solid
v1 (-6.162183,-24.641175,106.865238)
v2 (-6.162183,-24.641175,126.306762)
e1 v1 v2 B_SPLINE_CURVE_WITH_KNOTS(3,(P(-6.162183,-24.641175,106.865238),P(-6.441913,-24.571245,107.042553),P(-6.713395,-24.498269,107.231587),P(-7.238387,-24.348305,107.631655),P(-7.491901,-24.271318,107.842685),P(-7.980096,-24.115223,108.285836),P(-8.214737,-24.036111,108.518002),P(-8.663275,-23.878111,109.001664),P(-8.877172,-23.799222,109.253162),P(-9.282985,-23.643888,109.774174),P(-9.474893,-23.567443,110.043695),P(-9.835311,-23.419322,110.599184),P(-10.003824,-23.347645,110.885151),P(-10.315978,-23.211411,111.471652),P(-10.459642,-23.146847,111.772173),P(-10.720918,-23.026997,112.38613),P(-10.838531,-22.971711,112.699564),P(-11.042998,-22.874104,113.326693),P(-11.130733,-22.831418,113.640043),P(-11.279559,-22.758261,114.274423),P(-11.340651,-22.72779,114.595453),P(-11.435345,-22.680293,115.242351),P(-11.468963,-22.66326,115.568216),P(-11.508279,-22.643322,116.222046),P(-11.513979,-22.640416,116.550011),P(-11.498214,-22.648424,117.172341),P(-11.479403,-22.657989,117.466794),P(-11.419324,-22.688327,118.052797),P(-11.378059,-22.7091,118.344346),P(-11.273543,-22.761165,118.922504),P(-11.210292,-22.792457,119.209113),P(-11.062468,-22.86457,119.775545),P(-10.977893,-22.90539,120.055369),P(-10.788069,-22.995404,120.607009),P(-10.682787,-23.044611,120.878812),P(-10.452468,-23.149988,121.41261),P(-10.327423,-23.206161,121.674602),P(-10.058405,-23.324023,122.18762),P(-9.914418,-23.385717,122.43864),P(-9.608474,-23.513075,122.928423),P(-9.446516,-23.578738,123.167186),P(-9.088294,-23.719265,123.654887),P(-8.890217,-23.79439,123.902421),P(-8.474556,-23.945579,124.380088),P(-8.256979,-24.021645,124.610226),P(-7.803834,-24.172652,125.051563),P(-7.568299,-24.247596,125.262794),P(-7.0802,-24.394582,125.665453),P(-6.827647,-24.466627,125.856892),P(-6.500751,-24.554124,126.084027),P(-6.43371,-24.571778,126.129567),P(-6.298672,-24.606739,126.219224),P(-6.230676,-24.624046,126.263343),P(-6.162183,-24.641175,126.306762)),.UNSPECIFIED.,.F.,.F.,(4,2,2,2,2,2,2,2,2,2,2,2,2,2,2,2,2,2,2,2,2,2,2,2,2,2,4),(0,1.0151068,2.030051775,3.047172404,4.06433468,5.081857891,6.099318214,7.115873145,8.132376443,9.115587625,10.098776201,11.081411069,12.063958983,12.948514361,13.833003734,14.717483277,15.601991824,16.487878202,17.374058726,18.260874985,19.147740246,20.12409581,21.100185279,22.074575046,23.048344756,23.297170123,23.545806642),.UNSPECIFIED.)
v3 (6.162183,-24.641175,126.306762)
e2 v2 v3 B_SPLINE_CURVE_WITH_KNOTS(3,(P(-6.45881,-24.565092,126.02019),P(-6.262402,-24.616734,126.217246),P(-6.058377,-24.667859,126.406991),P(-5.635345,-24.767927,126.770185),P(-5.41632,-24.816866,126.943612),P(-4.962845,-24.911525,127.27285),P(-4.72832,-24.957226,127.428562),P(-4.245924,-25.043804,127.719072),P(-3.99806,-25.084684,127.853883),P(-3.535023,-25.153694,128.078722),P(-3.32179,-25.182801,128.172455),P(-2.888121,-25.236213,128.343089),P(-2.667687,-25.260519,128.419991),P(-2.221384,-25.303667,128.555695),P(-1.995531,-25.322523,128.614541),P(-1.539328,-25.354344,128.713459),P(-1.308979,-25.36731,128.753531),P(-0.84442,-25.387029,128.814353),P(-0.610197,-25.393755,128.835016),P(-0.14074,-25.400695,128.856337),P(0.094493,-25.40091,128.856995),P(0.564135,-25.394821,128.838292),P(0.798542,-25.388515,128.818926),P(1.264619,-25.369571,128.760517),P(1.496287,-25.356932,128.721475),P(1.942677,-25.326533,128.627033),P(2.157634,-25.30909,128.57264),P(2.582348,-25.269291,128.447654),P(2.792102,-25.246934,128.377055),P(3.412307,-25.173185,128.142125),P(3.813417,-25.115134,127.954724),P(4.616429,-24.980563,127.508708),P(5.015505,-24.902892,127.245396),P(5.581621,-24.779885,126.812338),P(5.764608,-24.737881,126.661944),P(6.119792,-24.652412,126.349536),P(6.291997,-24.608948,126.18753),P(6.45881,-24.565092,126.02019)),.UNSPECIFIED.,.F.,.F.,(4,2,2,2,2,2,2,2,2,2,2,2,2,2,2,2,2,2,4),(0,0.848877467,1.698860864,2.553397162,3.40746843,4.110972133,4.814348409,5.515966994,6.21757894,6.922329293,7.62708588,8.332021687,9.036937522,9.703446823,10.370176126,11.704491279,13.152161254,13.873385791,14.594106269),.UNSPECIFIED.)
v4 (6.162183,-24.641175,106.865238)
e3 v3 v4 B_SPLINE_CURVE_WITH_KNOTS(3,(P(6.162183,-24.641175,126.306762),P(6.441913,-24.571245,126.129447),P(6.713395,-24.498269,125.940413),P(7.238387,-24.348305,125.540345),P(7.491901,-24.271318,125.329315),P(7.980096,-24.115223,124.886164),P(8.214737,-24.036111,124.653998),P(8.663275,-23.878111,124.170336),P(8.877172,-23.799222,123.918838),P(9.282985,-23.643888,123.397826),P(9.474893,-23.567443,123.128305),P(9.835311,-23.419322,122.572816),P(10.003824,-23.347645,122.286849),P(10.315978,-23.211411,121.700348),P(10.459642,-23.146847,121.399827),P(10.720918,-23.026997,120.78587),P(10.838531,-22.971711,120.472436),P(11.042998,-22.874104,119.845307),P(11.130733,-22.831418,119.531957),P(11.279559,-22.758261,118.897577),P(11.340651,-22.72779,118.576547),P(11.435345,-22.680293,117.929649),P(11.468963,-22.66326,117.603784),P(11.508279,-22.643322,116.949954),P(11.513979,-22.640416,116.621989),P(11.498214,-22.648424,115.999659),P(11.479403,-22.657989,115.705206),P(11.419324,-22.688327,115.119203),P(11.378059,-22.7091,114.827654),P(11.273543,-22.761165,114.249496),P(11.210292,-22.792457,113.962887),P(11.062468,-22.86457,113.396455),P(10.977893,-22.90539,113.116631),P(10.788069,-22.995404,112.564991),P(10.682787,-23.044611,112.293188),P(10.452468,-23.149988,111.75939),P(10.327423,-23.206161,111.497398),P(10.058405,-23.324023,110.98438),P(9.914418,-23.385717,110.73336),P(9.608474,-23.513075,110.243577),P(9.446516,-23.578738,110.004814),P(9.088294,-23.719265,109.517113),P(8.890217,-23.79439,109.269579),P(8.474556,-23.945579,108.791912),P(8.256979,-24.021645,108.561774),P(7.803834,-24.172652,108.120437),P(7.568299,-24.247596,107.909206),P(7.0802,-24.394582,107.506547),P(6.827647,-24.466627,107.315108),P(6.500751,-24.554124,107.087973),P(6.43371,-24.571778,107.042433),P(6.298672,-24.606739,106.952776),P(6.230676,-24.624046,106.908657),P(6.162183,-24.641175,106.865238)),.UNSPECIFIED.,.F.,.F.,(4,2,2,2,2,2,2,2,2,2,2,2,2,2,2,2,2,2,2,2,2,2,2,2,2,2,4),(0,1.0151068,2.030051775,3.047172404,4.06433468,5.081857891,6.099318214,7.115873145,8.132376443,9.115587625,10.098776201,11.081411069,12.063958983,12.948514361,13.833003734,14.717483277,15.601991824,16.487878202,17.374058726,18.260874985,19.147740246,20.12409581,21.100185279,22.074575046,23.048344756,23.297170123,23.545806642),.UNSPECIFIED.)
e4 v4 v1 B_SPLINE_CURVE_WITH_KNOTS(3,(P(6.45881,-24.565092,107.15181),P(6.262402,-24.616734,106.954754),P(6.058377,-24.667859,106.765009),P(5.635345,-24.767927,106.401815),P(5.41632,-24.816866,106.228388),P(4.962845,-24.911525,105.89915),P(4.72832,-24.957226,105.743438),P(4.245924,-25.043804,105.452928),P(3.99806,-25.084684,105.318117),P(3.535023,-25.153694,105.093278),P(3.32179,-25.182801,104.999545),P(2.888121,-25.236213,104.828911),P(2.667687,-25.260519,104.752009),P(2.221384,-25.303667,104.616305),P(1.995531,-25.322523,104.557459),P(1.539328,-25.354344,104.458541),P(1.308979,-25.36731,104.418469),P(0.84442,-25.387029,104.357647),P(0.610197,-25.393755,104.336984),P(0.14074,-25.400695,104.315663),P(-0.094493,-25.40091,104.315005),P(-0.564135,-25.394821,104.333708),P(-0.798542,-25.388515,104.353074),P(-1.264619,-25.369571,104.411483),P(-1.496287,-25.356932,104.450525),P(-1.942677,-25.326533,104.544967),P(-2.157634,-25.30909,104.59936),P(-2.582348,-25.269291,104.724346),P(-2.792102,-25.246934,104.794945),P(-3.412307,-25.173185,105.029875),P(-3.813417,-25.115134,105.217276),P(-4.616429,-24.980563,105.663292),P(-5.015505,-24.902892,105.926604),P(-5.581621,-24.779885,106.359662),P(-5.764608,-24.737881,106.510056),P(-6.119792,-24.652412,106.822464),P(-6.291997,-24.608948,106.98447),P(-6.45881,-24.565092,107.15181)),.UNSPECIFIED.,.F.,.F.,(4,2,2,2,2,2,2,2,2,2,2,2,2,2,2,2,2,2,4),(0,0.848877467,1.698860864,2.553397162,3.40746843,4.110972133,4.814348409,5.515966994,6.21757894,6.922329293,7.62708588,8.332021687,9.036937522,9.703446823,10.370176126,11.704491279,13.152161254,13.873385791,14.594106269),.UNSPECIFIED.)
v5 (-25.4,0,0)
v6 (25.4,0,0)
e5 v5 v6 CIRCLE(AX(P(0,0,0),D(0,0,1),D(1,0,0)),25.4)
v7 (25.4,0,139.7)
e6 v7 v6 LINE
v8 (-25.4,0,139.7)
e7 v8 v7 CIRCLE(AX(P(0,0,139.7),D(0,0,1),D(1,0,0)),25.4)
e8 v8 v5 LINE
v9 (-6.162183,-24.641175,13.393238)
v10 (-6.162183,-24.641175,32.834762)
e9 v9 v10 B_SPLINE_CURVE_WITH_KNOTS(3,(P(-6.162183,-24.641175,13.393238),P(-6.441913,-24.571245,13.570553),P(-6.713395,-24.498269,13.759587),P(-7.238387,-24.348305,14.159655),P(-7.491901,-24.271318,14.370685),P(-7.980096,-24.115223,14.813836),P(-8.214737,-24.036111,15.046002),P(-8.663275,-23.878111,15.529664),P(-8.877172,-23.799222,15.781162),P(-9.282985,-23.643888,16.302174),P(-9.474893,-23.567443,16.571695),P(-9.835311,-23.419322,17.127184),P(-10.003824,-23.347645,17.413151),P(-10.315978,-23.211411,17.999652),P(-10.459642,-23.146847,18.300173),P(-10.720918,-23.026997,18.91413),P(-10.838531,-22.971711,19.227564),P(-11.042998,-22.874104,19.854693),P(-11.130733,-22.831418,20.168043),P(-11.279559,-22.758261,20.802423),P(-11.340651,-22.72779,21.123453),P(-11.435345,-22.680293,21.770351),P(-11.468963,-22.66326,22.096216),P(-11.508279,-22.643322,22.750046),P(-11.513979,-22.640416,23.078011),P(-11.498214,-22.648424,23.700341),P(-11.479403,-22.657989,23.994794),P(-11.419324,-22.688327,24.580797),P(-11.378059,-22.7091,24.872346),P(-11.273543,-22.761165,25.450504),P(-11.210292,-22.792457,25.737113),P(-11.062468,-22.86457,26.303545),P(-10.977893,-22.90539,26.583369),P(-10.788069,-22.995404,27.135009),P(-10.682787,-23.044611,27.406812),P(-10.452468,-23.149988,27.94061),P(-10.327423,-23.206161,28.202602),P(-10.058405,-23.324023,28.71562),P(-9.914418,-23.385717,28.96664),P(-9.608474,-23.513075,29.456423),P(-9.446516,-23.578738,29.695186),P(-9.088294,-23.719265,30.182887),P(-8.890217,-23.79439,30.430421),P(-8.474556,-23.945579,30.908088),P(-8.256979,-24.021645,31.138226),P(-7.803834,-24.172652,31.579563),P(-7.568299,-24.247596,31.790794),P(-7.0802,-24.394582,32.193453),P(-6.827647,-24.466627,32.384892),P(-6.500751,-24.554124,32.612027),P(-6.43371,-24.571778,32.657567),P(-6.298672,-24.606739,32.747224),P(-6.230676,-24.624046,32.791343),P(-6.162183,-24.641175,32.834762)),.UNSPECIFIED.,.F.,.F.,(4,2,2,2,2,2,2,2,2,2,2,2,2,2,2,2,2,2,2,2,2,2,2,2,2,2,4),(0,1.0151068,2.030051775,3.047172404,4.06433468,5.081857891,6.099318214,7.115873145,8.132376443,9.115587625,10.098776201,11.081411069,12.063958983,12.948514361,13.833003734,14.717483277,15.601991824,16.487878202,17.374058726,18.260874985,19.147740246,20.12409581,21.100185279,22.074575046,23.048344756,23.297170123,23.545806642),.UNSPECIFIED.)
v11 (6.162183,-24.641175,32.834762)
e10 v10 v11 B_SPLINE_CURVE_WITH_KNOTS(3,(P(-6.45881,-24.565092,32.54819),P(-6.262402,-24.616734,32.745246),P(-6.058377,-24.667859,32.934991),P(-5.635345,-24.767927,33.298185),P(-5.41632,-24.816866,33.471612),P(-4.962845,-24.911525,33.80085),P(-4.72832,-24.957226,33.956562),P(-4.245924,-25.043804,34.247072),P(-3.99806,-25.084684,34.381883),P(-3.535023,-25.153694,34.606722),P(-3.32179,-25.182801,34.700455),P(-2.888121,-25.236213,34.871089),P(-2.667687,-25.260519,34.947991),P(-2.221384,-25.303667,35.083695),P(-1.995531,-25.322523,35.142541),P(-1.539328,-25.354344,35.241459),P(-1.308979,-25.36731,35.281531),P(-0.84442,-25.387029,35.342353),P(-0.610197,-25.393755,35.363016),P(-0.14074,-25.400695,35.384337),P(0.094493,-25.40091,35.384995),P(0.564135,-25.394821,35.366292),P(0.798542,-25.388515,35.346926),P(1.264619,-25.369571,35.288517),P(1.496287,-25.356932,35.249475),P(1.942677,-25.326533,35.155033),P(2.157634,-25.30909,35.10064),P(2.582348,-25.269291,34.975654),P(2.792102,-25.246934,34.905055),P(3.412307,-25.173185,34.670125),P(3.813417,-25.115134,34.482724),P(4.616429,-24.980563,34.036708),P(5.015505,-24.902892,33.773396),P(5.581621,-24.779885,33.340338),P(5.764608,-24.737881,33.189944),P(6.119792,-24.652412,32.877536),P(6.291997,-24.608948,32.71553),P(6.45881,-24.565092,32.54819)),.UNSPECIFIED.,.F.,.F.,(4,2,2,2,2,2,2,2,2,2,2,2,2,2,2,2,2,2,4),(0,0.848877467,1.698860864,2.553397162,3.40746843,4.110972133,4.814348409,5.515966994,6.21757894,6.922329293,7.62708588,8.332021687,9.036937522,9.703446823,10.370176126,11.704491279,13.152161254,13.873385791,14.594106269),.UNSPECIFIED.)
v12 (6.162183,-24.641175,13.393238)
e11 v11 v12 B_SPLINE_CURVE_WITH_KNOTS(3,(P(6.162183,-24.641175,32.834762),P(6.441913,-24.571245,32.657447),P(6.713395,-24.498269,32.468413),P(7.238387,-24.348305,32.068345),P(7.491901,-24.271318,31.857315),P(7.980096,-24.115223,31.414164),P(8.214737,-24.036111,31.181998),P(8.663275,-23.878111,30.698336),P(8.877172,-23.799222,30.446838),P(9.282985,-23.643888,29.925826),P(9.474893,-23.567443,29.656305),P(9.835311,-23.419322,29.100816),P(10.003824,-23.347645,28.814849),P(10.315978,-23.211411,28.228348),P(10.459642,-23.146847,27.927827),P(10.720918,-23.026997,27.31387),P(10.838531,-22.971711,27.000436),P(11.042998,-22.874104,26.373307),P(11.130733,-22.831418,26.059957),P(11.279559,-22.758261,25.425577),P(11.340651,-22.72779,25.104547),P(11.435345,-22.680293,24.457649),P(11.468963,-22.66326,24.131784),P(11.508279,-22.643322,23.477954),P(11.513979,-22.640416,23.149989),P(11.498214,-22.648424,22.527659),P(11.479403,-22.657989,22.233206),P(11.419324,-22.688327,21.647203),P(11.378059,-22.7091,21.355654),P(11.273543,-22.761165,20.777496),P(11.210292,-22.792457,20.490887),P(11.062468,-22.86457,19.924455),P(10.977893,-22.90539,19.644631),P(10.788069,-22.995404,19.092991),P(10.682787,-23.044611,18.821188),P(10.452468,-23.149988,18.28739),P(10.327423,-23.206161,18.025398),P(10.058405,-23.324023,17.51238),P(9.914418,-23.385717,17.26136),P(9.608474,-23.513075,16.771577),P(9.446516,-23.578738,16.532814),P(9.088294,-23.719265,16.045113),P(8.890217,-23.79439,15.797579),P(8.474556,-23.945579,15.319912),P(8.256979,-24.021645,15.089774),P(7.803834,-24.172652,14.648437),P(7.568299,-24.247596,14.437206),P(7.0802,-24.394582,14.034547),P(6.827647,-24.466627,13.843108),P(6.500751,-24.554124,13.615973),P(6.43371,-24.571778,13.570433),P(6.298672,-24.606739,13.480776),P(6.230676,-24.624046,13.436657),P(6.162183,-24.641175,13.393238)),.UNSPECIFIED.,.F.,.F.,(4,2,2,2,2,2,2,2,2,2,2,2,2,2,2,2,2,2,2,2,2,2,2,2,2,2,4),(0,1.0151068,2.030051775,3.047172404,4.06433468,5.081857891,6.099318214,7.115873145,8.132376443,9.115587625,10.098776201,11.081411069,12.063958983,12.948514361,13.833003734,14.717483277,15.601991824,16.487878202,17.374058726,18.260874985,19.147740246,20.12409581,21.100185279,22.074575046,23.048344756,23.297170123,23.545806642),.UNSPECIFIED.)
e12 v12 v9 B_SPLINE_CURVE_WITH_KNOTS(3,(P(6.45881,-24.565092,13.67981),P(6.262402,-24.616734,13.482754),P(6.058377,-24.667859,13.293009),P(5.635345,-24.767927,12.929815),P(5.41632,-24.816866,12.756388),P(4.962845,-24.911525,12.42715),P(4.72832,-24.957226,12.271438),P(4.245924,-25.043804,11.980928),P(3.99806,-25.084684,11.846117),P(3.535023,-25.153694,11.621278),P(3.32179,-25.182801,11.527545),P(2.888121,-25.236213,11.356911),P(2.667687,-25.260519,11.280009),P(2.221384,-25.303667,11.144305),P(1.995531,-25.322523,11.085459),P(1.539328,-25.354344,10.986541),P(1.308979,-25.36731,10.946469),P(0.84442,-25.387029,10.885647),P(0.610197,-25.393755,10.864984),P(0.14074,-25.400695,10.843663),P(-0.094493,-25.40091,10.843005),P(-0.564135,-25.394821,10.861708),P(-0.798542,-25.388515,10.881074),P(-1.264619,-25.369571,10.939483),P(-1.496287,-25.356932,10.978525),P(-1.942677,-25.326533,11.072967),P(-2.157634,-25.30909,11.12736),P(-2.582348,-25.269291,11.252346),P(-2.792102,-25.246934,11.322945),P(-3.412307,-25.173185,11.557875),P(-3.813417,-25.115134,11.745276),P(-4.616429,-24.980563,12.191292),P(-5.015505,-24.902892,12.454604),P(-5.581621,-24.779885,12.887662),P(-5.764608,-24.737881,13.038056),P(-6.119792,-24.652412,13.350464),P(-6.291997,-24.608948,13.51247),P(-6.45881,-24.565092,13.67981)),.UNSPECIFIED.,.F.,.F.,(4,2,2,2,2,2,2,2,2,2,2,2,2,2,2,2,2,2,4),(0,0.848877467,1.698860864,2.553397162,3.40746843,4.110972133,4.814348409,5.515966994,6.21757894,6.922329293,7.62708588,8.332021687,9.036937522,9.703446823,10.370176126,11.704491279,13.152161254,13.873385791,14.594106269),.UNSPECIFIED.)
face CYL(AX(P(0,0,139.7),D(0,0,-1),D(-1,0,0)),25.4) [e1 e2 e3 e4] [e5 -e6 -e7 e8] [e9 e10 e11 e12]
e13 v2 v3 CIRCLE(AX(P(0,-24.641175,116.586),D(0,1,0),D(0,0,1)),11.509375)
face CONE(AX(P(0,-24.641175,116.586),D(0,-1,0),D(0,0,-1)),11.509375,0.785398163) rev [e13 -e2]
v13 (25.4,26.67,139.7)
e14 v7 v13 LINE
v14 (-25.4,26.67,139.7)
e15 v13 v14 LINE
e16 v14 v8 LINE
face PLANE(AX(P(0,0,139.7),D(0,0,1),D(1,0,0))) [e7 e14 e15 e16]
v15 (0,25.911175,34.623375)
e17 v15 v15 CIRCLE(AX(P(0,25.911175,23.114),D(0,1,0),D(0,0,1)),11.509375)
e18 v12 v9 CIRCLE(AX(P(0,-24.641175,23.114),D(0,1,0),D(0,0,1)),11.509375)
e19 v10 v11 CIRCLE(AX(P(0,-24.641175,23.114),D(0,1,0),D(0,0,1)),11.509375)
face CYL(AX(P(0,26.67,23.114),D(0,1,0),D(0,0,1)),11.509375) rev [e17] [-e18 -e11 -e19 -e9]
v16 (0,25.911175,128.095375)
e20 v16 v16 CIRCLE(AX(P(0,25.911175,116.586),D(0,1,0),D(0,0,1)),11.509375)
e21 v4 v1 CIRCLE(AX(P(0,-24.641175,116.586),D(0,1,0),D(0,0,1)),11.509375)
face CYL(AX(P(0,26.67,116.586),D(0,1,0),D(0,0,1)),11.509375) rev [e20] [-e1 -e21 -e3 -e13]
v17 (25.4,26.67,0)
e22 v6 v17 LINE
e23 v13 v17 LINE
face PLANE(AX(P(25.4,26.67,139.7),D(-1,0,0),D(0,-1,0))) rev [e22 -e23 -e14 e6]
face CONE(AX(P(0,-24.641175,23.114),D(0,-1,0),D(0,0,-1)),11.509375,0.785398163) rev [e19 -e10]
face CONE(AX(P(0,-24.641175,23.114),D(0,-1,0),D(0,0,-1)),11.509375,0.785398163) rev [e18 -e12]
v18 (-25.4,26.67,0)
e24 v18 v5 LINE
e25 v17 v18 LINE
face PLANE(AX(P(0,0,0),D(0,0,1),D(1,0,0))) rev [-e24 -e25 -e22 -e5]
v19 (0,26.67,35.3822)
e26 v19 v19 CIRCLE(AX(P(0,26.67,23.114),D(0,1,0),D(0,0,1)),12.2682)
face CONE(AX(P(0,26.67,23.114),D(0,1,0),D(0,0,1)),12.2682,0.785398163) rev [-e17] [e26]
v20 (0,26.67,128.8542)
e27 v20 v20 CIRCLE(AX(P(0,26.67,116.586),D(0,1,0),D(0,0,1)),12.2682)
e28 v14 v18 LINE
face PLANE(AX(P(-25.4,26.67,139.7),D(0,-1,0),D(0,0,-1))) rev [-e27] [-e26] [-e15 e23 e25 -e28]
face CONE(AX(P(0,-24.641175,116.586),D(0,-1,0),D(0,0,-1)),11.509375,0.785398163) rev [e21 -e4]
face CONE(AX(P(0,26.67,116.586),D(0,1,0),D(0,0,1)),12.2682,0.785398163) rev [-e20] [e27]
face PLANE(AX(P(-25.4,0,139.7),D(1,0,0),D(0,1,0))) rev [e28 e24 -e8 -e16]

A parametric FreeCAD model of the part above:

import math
import FreeCAD as App
import Part
import Sketcher
Q = App.Units.Quantity


def add_polygon(sketch, points):
    """Adds a closed chain of lines whose ends are joined by coincident constraints."""
    first, n = sketch.GeometryCount, len(points)
    for a, b in zip(points, points[1:] + points[:1]):
        sketch.addGeometry(Part.LineSegment(App.Vector(*a, 0), App.Vector(*b, 0)), False)
    for i in range(n):
        sketch.addConstraint(Sketcher.Constraint("Coincident", first + i, 2, first + (i + 1) % n, 1))

doc = App.newDocument("Part")
body = doc.addObject("PartDesign::Body", "Body")

sketch1 = doc.addObject("Sketcher::SketchObject", "Sketch")
body.addObject(sketch1)
sketch1.AttachmentSupport = (doc.XY_Plane, [""])
sketch1.MapMode = "FlatFace"
sketch1.addGeometry([
    Part.LineSegment(App.Vector(-25, 27, 0), App.Vector(-25, 0, 0)),
    Part.ArcOfCircle(Part.Circle(App.Vector(0, 0, 0), App.Vector(0, 0, 1), 25), math.radians(180), math.radians(360)),
    Part.LineSegment(App.Vector(25, 0, 0), App.Vector(25, 27, 0)),
    Part.LineSegment(App.Vector(25, 27, 0), App.Vector(-25, 27, 0)),
], False)
sketch1.addConstraint([
    Sketcher.Constraint("Tangent", 0, 2, 1, 1),
    Sketcher.Constraint("Tangent", 1, 2, 2, 1),
    Sketcher.Constraint("Coincident", 2, 2, 3, 1),
    Sketcher.Constraint("Coincident", 3, 2, 0, 1),
    Sketcher.Constraint("Vertical", 0),
    Sketcher.Constraint("Vertical", 2),
    Sketcher.Constraint("Horizontal", 3),
    Sketcher.Constraint("Coincident", 1, 3, -1, 1),
    Sketcher.Constraint("Radius", 1, Q("1 in")),
    Sketcher.Constraint("DistanceY", 0, 2, 0, 1, Q("1.05 in")),
])
pad1 = doc.addObject("PartDesign::Pad", "Pad")
body.addObject(pad1)
pad1.Profile = sketch1
pad1.Length = Q("5.5 in")

sketch2 = doc.addObject("Sketcher::SketchObject", "Sketch001")
body.addObject(sketch2)
sketch2.AttachmentSupport = (doc.YZ_Plane, [""])
sketch2.MapMode = "FlatFace"
add_polygon(sketch2, [(-25.4, 23.1), (26.7, 23.1), (26.7, 35.4), (25.9, 34.6), (-24.6, 34.6), (-25.4, 35.4)])
sketch2.addGeometry(Part.LineSegment(App.Vector(26.7, 23.1, 0), App.Vector(-25.4, 23.1, 0)), True)
sketch2.addConstraint([
    Sketcher.Constraint("Horizontal", 0),
    Sketcher.Constraint("Vertical", 1),
    Sketcher.Constraint("Horizontal", 3),
    Sketcher.Constraint("Vertical", 5),
    Sketcher.Constraint("Horizontal", 6),
    Sketcher.Constraint("Coincident", 6, 1, 0, 2),
    Sketcher.Constraint("Perpendicular", 2, 4),
    Sketcher.Constraint("Horizontal", 1, 2, 4, 2),
    Sketcher.Constraint("Vertical", 4, 2, 6, 2),
    Sketcher.Constraint("Equal", 2, 4),
    Sketcher.Constraint("DistanceX", 4, 2, -1, 1, Q("1 in")),
    Sketcher.Constraint("DistanceX", 0, 1, 0, 2, Q("2.05 in")),
    Sketcher.Constraint("DistanceY", 1, 1, 1, 2, Q("0.483 in")),
    Sketcher.Constraint("DistanceY", -1, 1, 0, 2, Q("0.91 in")),
    Sketcher.Constraint("DistanceY", 0, 2, 2, 2, Q("0.453125 in")),
])
groove = doc.addObject("PartDesign::Groove", "Groove")
body.addObject(groove)
groove.Profile = sketch2
groove.ReferenceAxis = (sketch2, ["Axis0"])
groove.Angle = 360
doc.recompute()

linearpattern = doc.addObject("PartDesign::LinearPattern", "LinearPattern")
body.addObject(linearpattern)
linearpattern.Originals = [groove]
linearpattern.Direction = (doc.Z_Axis, [""])
linearpattern.Mode = "offset"
linearpattern.Offset = Q("3.68 in")
linearpattern.Occurrences = 2
body.Tip = linearpattern

doc.recompute()
